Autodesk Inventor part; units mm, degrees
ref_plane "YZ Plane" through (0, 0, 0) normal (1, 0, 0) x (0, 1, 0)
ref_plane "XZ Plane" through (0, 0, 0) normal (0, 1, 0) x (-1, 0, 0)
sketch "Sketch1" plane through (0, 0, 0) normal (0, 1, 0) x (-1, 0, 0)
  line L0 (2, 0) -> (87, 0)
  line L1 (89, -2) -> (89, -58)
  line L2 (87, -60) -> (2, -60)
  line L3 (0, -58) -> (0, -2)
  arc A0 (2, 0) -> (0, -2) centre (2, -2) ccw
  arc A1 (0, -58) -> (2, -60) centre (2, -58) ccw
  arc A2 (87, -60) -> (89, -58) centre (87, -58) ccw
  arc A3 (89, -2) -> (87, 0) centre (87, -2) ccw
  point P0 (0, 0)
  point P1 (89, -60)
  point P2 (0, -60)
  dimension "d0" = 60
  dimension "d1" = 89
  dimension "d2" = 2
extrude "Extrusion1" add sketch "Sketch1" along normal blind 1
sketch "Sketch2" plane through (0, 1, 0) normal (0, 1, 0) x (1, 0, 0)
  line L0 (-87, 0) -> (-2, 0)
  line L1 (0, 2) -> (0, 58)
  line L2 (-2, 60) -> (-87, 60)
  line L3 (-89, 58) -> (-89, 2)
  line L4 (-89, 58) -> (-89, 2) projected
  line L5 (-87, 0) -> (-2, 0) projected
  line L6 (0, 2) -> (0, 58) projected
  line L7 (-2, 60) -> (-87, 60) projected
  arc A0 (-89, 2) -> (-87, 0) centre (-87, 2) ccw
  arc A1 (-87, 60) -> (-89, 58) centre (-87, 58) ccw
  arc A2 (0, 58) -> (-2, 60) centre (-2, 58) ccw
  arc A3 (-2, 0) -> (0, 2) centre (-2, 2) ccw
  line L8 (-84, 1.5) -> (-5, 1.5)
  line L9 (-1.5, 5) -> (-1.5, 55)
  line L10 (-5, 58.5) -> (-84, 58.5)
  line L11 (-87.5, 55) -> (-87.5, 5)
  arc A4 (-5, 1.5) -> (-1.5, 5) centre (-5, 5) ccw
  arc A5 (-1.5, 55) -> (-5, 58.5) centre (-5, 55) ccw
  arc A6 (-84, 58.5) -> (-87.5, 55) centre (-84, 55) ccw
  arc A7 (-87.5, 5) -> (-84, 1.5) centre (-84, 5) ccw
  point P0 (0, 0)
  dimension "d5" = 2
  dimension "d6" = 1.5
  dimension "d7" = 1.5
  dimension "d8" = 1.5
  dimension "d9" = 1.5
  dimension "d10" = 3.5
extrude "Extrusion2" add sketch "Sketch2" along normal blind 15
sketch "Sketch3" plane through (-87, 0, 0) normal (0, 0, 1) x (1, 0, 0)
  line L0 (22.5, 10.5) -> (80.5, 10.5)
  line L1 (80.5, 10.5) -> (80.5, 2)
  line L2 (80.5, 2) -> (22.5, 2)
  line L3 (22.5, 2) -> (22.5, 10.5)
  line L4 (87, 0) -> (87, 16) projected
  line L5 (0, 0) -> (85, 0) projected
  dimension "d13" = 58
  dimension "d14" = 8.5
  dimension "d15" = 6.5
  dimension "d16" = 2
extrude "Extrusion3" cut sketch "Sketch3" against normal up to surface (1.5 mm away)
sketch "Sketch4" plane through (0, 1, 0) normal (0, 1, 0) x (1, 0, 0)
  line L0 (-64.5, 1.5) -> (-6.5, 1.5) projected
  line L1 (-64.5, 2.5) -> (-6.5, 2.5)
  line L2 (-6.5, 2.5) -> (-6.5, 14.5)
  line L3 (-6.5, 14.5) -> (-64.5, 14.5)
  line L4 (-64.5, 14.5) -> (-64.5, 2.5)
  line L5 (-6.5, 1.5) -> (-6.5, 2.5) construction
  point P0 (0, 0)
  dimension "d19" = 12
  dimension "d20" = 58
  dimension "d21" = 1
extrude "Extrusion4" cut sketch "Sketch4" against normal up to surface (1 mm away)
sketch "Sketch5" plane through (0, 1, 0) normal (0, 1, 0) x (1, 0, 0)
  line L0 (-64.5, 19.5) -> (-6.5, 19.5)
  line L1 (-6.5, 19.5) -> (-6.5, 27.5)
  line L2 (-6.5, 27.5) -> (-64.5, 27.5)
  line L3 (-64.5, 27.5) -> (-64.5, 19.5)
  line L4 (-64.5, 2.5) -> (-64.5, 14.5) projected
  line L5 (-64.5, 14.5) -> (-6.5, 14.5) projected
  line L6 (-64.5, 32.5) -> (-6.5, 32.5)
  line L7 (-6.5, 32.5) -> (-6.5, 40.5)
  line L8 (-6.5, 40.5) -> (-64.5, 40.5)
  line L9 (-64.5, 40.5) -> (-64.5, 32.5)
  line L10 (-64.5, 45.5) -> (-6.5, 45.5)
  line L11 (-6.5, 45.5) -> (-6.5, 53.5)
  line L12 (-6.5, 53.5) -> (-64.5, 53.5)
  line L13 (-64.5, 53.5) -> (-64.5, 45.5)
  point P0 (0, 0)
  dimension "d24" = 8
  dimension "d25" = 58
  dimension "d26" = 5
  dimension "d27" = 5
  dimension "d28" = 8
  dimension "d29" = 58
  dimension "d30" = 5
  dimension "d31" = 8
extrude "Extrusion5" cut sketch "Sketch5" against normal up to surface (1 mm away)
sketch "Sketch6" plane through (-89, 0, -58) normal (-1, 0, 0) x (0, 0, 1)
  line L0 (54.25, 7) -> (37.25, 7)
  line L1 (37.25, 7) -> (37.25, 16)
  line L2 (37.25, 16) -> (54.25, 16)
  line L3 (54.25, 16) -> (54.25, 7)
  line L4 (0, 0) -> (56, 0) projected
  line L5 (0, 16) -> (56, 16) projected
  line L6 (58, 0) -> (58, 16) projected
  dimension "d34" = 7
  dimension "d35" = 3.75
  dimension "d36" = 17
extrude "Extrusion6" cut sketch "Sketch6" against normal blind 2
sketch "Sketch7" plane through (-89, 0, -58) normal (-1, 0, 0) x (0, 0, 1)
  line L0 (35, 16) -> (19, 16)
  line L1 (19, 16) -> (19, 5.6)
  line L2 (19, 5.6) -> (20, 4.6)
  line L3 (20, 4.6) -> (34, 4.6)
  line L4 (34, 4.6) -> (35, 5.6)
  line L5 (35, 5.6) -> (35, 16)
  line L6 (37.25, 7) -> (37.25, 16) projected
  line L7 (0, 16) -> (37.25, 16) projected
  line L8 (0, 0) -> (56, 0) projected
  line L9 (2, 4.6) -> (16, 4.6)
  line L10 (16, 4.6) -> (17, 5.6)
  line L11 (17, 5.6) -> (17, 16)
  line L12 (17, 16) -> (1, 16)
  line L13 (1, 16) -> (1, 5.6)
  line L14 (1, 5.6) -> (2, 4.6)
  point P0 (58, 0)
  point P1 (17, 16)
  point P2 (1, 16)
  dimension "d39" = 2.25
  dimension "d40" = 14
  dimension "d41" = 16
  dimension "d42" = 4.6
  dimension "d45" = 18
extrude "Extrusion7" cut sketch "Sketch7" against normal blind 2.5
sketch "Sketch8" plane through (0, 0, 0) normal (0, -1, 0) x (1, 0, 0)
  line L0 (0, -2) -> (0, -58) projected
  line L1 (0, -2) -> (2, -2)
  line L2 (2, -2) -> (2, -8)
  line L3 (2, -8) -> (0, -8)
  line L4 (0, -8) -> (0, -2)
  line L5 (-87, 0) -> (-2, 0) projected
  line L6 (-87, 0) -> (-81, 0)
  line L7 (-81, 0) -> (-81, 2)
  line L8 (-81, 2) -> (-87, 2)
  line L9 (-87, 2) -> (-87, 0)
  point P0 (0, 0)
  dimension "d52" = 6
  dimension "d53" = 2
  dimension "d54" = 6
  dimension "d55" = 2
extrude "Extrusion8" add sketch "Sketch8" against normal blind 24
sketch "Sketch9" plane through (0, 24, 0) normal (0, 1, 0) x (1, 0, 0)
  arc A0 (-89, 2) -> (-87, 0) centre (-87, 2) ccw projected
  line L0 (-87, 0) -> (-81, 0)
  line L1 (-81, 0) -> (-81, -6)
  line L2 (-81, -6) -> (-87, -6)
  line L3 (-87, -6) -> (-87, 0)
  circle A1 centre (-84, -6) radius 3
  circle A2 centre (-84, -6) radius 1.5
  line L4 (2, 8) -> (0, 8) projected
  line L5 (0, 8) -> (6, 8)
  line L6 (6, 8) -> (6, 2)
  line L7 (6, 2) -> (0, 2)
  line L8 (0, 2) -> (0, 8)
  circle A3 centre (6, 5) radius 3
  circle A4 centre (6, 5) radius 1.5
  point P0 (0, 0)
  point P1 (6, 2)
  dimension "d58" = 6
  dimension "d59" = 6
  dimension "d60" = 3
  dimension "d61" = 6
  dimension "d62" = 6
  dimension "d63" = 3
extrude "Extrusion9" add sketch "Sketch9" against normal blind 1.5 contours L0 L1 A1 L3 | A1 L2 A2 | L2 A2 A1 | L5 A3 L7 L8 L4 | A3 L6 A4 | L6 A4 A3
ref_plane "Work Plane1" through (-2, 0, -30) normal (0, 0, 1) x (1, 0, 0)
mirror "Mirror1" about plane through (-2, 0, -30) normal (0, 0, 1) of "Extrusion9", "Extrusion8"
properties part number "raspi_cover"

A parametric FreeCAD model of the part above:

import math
import FreeCAD as App
import Part
import Sketcher

doc = App.newDocument("Part")
params = doc.addObject("Spreadsheet::Sheet", "Params")
for row, (alias, value) in enumerate([
    ("sketch1_radius", "2 mm"),
    ("pad1_length", "1 mm"),
    ("sketch2_radius", "2 mm"),
    ("sketch2_radius2", "3.5 mm"),
    ("sketch2_width", "85 mm"),
    ("sketch2_height", "56 mm"),
    ("pad2_length", "15 mm"),
    ("sketch3_width", "58 mm"),
    ("sketch3_height", "8.5 mm"),
    ("pocket1_length", "1.5 mm"),
    ("sketch4_width", "58 mm"),
    ("sketch4_height", "12 mm"),
    ("pocket2_length", "1 mm"),
    ("sketch5_width", "58 mm"),
    ("sketch5_height", "8 mm"),
    ("pocket3_length", "1 mm"),
    ("sketch6_height", "17 mm"),
    ("sketch6_width", "9 mm"),
    ("pocket4_length", "2 mm"),
    ("sketch7_height", "16 mm"),
    ("sketch7_height2", "14 mm"),
    ("pocket5_length", "2.5 mm"),
    ("sketch8_width", "2 mm"),
    ("sketch8_width2", "6 mm"),
    ("pad3_length", "24 mm"),
    ("sketch9_diameter", "3 mm"),
    ("sketch9_radius", "3 mm"),
    ("pad4_length", "1.5 mm"),
], start=1):
    params.set(f"A{row}", alias)
    params.set(f"B{row}", "=" + value)
    params.setAlias(f"B{row}", alias)

body = doc.addObject("PartDesign::Body", "Body")

# Sketch on XZ plane
sketch1 = doc.addObject("Sketcher::SketchObject", "Sketch")
body.addObject(sketch1)
sketch1.AttachmentSupport = (doc.XZ_Plane, [""])
sketch1.MapMode = "FlatFace"
sketch1.addGeometry([
    Part.LineSegment(App.Vector(-87, 0, 0), App.Vector(-2, 0, 0)),  # 0
    Part.ArcOfCircle(Part.Circle(App.Vector(-2, -2, 0), App.Vector(0, 0, 1), 2), math.radians(0), math.radians(90)),  # 1
    Part.LineSegment(App.Vector(0, -2, 0), App.Vector(0, -58, 0)),  # 2
    Part.ArcOfCircle(Part.Circle(App.Vector(-2, -58, 0), App.Vector(0, 0, 1), 2), math.radians(-90), math.radians(0)),  # 3
    Part.LineSegment(App.Vector(-2, -60, 0), App.Vector(-87, -60, 0)),  # 4
    Part.ArcOfCircle(Part.Circle(App.Vector(-87, -58, 0), App.Vector(0, 0, 1), 2), math.radians(180), math.radians(270)),  # 5
    Part.LineSegment(App.Vector(-89, -58, 0), App.Vector(-89, -2, 0)),  # 6
    Part.ArcOfCircle(Part.Circle(App.Vector(-87, -2, 0), App.Vector(0, 0, 1), 2), math.radians(90), math.radians(180)),  # 7
], False)
sketch1.addConstraint([
    Sketcher.Constraint("Tangent", 0, 2, 1, 2),
    Sketcher.Constraint("Tangent", 1, 1, 2, 1),
    Sketcher.Constraint("Tangent", 2, 2, 3, 2),
    Sketcher.Constraint("Tangent", 3, 1, 4, 1),
    Sketcher.Constraint("Tangent", 4, 2, 5, 2),
    Sketcher.Constraint("Tangent", 5, 1, 6, 1),
    Sketcher.Constraint("Tangent", 6, 2, 7, 2),
    Sketcher.Constraint("Tangent", 7, 1, 0, 1),
    Sketcher.Constraint("Horizontal", 0),
    Sketcher.Constraint("Vertical", 2),
    Sketcher.Constraint("Horizontal", 4),
    Sketcher.Constraint("Vertical", 6),
    Sketcher.Constraint("Equal", 1, 3),
    Sketcher.Constraint("Equal", 3, 5),
    Sketcher.Constraint("Equal", 5, 7),
    Sketcher.Constraint("PointOnObject", 0, 2, -1),
    Sketcher.Constraint("PointOnObject", 1, 1, -2),
    Sketcher.Constraint("Radius", 1, 2.0),
    Sketcher.Constraint("DistanceY", 3, 1, -1, 1, 60.0),
    Sketcher.Constraint("DistanceX", 5, 1, -1, 1, 89.0),
])
sketch1.setExpression("Constraints[17]", "Params.sketch1_radius")
pad1 = doc.addObject("PartDesign::Pad", "Pad")
body.addObject(pad1)
pad1.Profile = sketch1
pad1.setExpression("Length", "Params.pad1_length")
pad1.Reversed = True

# Sketch on XZ plane
sketch2 = doc.addObject("Sketcher::SketchObject", "Sketch001")
body.addObject(sketch2)
sketch2.AttachmentSupport = (doc.XZ_Plane, [""])
sketch2.MapMode = "FlatFace"
sketch2.AttachmentOffset = App.Placement(App.Vector(0, 0, -1), App.Rotation())
sketch2.addGeometry([
    Part.ArcOfCircle(Part.Circle(App.Vector(-87, -2, 0), App.Vector(0, 0, 1), 2), math.radians(90), math.radians(180)),  # 0
    Part.LineSegment(App.Vector(-87, 0, 0), App.Vector(-2, 0, 0)),  # 1
    Part.ArcOfCircle(Part.Circle(App.Vector(-2, -2, 0), App.Vector(0, 0, 1), 2), math.radians(0), math.radians(90)),  # 2
    Part.LineSegment(App.Vector(0, -2, 0), App.Vector(0, -58, 0)),  # 3
    Part.ArcOfCircle(Part.Circle(App.Vector(-2, -58, 0), App.Vector(0, 0, 1), 2), math.radians(-90), math.radians(0)),  # 4
    Part.LineSegment(App.Vector(-2, -60, 0), App.Vector(-87, -60, 0)),  # 5
    Part.ArcOfCircle(Part.Circle(App.Vector(-87, -58, 0), App.Vector(0, 0, 1), 2), math.radians(180), math.radians(270)),  # 6
    Part.LineSegment(App.Vector(-89, -58, 0), App.Vector(-89, -2, 0)),  # 7
    Part.LineSegment(App.Vector(-5, -1.5, 0), App.Vector(-84, -1.5, 0)),  # 8
    Part.ArcOfCircle(Part.Circle(App.Vector(-84, -5, 0), App.Vector(0, 0, 1), 3.5), math.radians(90), math.radians(180)),  # 9
    Part.LineSegment(App.Vector(-87.5, -5, 0), App.Vector(-87.5, -55, 0)),  # 10
    Part.ArcOfCircle(Part.Circle(App.Vector(-84, -55, 0), App.Vector(0, 0, 1), 3.5), math.radians(180), math.radians(270)),  # 11
    Part.LineSegment(App.Vector(-84, -58.5, 0), App.Vector(-5, -58.5, 0)),  # 12
    Part.ArcOfCircle(Part.Circle(App.Vector(-5, -55, 0), App.Vector(0, 0, 1), 3.5), math.radians(-90), math.radians(0)),  # 13
    Part.LineSegment(App.Vector(-1.5, -55, 0), App.Vector(-1.5, -5, 0)),  # 14
    Part.ArcOfCircle(Part.Circle(App.Vector(-5, -5, 0), App.Vector(0, 0, 1), 3.5), math.radians(0), math.radians(90)),  # 15
], False)
sketch2.addConstraint([
    Sketcher.Constraint("Tangent", 0, 1, 1, 1),
    Sketcher.Constraint("Tangent", 1, 2, 2, 2),
    Sketcher.Constraint("Tangent", 2, 1, 3, 1),
    Sketcher.Constraint("Tangent", 3, 2, 4, 2),
    Sketcher.Constraint("Tangent", 4, 1, 5, 1),
    Sketcher.Constraint("Tangent", 5, 2, 6, 2),
    Sketcher.Constraint("Tangent", 6, 1, 7, 1),
    Sketcher.Constraint("Tangent", 7, 2, 0, 2),
    Sketcher.Constraint("Tangent", 8, 2, 9, 1),
    Sketcher.Constraint("Tangent", 9, 2, 10, 1),
    Sketcher.Constraint("Tangent", 10, 2, 11, 1),
    Sketcher.Constraint("Tangent", 11, 2, 12, 1),
    Sketcher.Constraint("Tangent", 12, 2, 13, 1),
    Sketcher.Constraint("Tangent", 13, 2, 14, 1),
    Sketcher.Constraint("Tangent", 14, 2, 15, 1),
    Sketcher.Constraint("Tangent", 15, 2, 8, 1),
    Sketcher.Constraint("Horizontal", 1),
    Sketcher.Constraint("Vertical", 3),
    Sketcher.Constraint("Horizontal", 5),
    Sketcher.Constraint("Vertical", 7),
    Sketcher.Constraint("Horizontal", 8),
    Sketcher.Constraint("Vertical", 10),
    Sketcher.Constraint("Horizontal", 12),
    Sketcher.Constraint("Vertical", 14),
    Sketcher.Constraint("Equal", 0, 2),
    Sketcher.Constraint("Equal", 2, 4),
    Sketcher.Constraint("Equal", 4, 6),
    Sketcher.Constraint("Equal", 9, 11),
    Sketcher.Constraint("Equal", 11, 13),
    Sketcher.Constraint("Equal", 13, 15),
    Sketcher.Constraint("PointOnObject", 0, 1, -1),
    Sketcher.Constraint("PointOnObject", 2, 1, -2),
    Sketcher.Constraint("Radius", 0, 2.0),
    Sketcher.Constraint("Radius", 9, 3.5),
    Sketcher.Constraint("DistanceY", 8, 2, -1, 1, 1.5),
    Sketcher.Constraint("DistanceX", 13, 2, -1, 1, 1.5),
    Sketcher.Constraint("DistanceX", 7, 2, 9, 2, 1.5),
    Sketcher.Constraint("DistanceY", 5, 2, 11, 2, 1.5),
    Sketcher.Constraint("DistanceX", 1, 1, 1, 2, 85.0),
    Sketcher.Constraint("DistanceY", 3, 2, 3, 1, 56.0),
])
sketch2.setExpression("Constraints[32]", "Params.sketch2_radius")
sketch2.setExpression("Constraints[33]", "Params.sketch2_radius2")
sketch2.setExpression("Constraints[38]", "Params.sketch2_width")
sketch2.setExpression("Constraints[39]", "Params.sketch2_height")
pad2 = doc.addObject("PartDesign::Pad", "Pad001")
body.addObject(pad2)
pad2.Profile = sketch2
pad2.setExpression("Length", "Params.pad2_length")
pad2.Reversed = True

# Sketch on XY plane
sketch3 = doc.addObject("Sketcher::SketchObject", "Sketch002")
body.addObject(sketch3)
sketch3.AttachmentSupport = (doc.XY_Plane, [""])
sketch3.MapMode = "FlatFace"
sketch3.addGeometry([
    Part.LineSegment(App.Vector(-6.5, 10.5, 0), App.Vector(-64.5, 10.5, 0)),
    Part.LineSegment(App.Vector(-64.5, 10.5, 0), App.Vector(-64.5, 2, 0)),
    Part.LineSegment(App.Vector(-64.5, 2, 0), App.Vector(-6.5, 2, 0)),
    Part.LineSegment(App.Vector(-6.5, 2, 0), App.Vector(-6.5, 10.5, 0)),
], False)
sketch3.addConstraint([
    Sketcher.Constraint("Coincident", 0, 2, 1, 1),
    Sketcher.Constraint("Coincident", 1, 2, 2, 1),
    Sketcher.Constraint("Coincident", 2, 2, 3, 1),
    Sketcher.Constraint("Coincident", 3, 2, 0, 1),
    Sketcher.Constraint("Horizontal", 0),
    Sketcher.Constraint("Vertical", 1),
    Sketcher.Constraint("Horizontal", 2),
    Sketcher.Constraint("Vertical", 3),
    Sketcher.Constraint("DistanceX", 0, 2, 0, 1, 58.0),
    Sketcher.Constraint("DistanceY", 1, 2, 1, 1, 8.5),
    Sketcher.Constraint("DistanceY", -1, 1, 1, 2, 2.0),
    Sketcher.Constraint("DistanceX", 2, 2, -1, 1, 6.5),
])
sketch3.setExpression("Constraints[8]", "Params.sketch3_width")
sketch3.setExpression("Constraints[9]", "Params.sketch3_height")
pocket1 = doc.addObject("PartDesign::Pocket", "Pocket")
body.addObject(pocket1)
pocket1.Profile = sketch3
pocket1.setExpression("Length", "Params.pocket1_length")

# Sketch on XZ plane
sketch4 = doc.addObject("Sketcher::SketchObject", "Sketch003")
body.addObject(sketch4)
sketch4.AttachmentSupport = (doc.XZ_Plane, [""])
sketch4.MapMode = "FlatFace"
sketch4.AttachmentOffset = App.Placement(App.Vector(0, 0, -1), App.Rotation())
sketch4.addGeometry([
    Part.LineSegment(App.Vector(-64.5, -14.5, 0), App.Vector(-64.5, -2.5, 0)),
    Part.LineSegment(App.Vector(-64.5, -2.5, 0), App.Vector(-6.5, -2.5, 0)),
    Part.LineSegment(App.Vector(-6.5, -2.5, 0), App.Vector(-6.5, -14.5, 0)),
    Part.LineSegment(App.Vector(-6.5, -14.5, 0), App.Vector(-64.5, -14.5, 0)),
], False)
sketch4.addConstraint([
    Sketcher.Constraint("Coincident", 0, 2, 1, 1),
    Sketcher.Constraint("Coincident", 1, 2, 2, 1),
    Sketcher.Constraint("Coincident", 2, 2, 3, 1),
    Sketcher.Constraint("Coincident", 3, 2, 0, 1),
    Sketcher.Constraint("Vertical", 0),
    Sketcher.Constraint("Horizontal", 1),
    Sketcher.Constraint("Vertical", 2),
    Sketcher.Constraint("Horizontal", 3),
    Sketcher.Constraint("DistanceX", 1, 1, 1, 2, 58.0),
    Sketcher.Constraint("DistanceY", 0, 1, 0, 2, 12.0),
    Sketcher.Constraint("DistanceX", 0, 2, -1, 1, 64.5),
    Sketcher.Constraint("DistanceY", 0, 2, -1, 1, 2.5),
])
sketch4.setExpression("Constraints[8]", "Params.sketch4_width")
sketch4.setExpression("Constraints[9]", "Params.sketch4_height")
pocket2 = doc.addObject("PartDesign::Pocket", "Pocket001")
body.addObject(pocket2)
pocket2.Profile = sketch4
pocket2.setExpression("Length", "Params.pocket2_length")
pocket2.Reversed = True

# Sketch on XZ plane
sketch5 = doc.addObject("Sketcher::SketchObject", "Sketch004")
body.addObject(sketch5)
sketch5.AttachmentSupport = (doc.XZ_Plane, [""])
sketch5.MapMode = "FlatFace"
sketch5.AttachmentOffset = App.Placement(App.Vector(0, 0, -1), App.Rotation())
sketch5.addGeometry([
    Part.LineSegment(App.Vector(-64.5, -27.5, 0), App.Vector(-64.5, -19.5, 0)),  # 0
    Part.LineSegment(App.Vector(-64.5, -19.5, 0), App.Vector(-6.5, -19.5, 0)),  # 1
    Part.LineSegment(App.Vector(-6.5, -19.5, 0), App.Vector(-6.5, -27.5, 0)),  # 2
    Part.LineSegment(App.Vector(-6.5, -27.5, 0), App.Vector(-64.5, -27.5, 0)),  # 3
    Part.LineSegment(App.Vector(-64.5, -40.5, 0), App.Vector(-64.5, -32.5, 0)),  # 4
    Part.LineSegment(App.Vector(-64.5, -32.5, 0), App.Vector(-6.5, -32.5, 0)),  # 5
    Part.LineSegment(App.Vector(-6.5, -32.5, 0), App.Vector(-6.5, -40.5, 0)),  # 6
    Part.LineSegment(App.Vector(-6.5, -40.5, 0), App.Vector(-64.5, -40.5, 0)),  # 7
    Part.LineSegment(App.Vector(-64.5, -53.5, 0), App.Vector(-64.5, -45.5, 0)),  # 8
    Part.LineSegment(App.Vector(-64.5, -45.5, 0), App.Vector(-6.5, -45.5, 0)),  # 9
    Part.LineSegment(App.Vector(-6.5, -45.5, 0), App.Vector(-6.5, -53.5, 0)),  # 10
    Part.LineSegment(App.Vector(-6.5, -53.5, 0), App.Vector(-64.5, -53.5, 0)),  # 11
], False)
sketch5.addConstraint([
    Sketcher.Constraint("Coincident", 0, 2, 1, 1),
    Sketcher.Constraint("Coincident", 1, 2, 2, 1),
    Sketcher.Constraint("Coincident", 2, 2, 3, 1),
    Sketcher.Constraint("Coincident", 3, 2, 0, 1),
    Sketcher.Constraint("Coincident", 4, 2, 5, 1),
    Sketcher.Constraint("Coincident", 5, 2, 6, 1),
    Sketcher.Constraint("Coincident", 6, 2, 7, 1),
    Sketcher.Constraint("Coincident", 7, 2, 4, 1),
    Sketcher.Constraint("Coincident", 8, 2, 9, 1),
    Sketcher.Constraint("Coincident", 9, 2, 10, 1),
    Sketcher.Constraint("Coincident", 10, 2, 11, 1),
    Sketcher.Constraint("Coincident", 11, 2, 8, 1),
    Sketcher.Constraint("Vertical", 0),
    Sketcher.Constraint("Horizontal", 1),
    Sketcher.Constraint("Vertical", 2),
    Sketcher.Constraint("Horizontal", 3),
    Sketcher.Constraint("Vertical", 4),
    Sketcher.Constraint("Horizontal", 5),
    Sketcher.Constraint("Vertical", 6),
    Sketcher.Constraint("Horizontal", 7),
    Sketcher.Constraint("Vertical", 8),
    Sketcher.Constraint("Horizontal", 9),
    Sketcher.Constraint("Vertical", 10),
    Sketcher.Constraint("Horizontal", 11),
    Sketcher.Constraint("Vertical", 3, 2, 4, 2),
    Sketcher.Constraint("Vertical", 2, 2, 5, 2),
    Sketcher.Constraint("Vertical", 7, 2, 8, 2),
    Sketcher.Constraint("Vertical", 6, 2, 9, 2),
    Sketcher.Constraint("Equal", 2, 4),
    Sketcher.Constraint("Equal", 6, 8),
    Sketcher.Constraint("DistanceX", 1, 1, 1, 2, 58.0),
    Sketcher.Constraint("DistanceY", 0, 1, 0, 2, 8.0),
    Sketcher.Constraint("DistanceY", 4, 2, 3, 2, 5.0),
    Sketcher.Constraint("DistanceY", 8, 2, 7, 2, 5.0),
    Sketcher.Constraint("DistanceX", 0, 2, -1, 1, 64.5),
    Sketcher.Constraint("DistanceY", 0, 2, -1, 1, 19.5),
])
sketch5.setExpression("Constraints[30]", "Params.sketch5_width")
sketch5.setExpression("Constraints[31]", "Params.sketch5_height")
pocket3 = doc.addObject("PartDesign::Pocket", "Pocket002")
body.addObject(pocket3)
pocket3.Profile = sketch5
pocket3.setExpression("Length", "Params.pocket3_length")
pocket3.Reversed = True

# Sketch on YZ plane
sketch6 = doc.addObject("Sketcher::SketchObject", "Sketch005")
body.addObject(sketch6)
sketch6.AttachmentSupport = (doc.YZ_Plane, [""])
sketch6.MapMode = "FlatFace"
sketch6.AttachmentOffset = App.Placement(App.Vector(0, 0, -89), App.Rotation())
sketch6.addGeometry([
    Part.LineSegment(App.Vector(7, -20.75, 0), App.Vector(7, -3.75, 0)),
    Part.LineSegment(App.Vector(7, -3.75, 0), App.Vector(16, -3.75, 0)),
    Part.LineSegment(App.Vector(16, -3.75, 0), App.Vector(16, -20.75, 0)),
    Part.LineSegment(App.Vector(16, -20.75, 0), App.Vector(7, -20.75, 0)),
], False)
sketch6.addConstraint([
    Sketcher.Constraint("Coincident", 0, 2, 1, 1),
    Sketcher.Constraint("Coincident", 1, 2, 2, 1),
    Sketcher.Constraint("Coincident", 2, 2, 3, 1),
    Sketcher.Constraint("Coincident", 3, 2, 0, 1),
    Sketcher.Constraint("Vertical", 0),
    Sketcher.Constraint("Horizontal", 1),
    Sketcher.Constraint("Vertical", 2),
    Sketcher.Constraint("Horizontal", 3),
    Sketcher.Constraint("DistanceY", 0, 1, 0, 2, 17.0),
    Sketcher.Constraint("DistanceX", -1, 1, 0, 2, 7.0),
    Sketcher.Constraint("DistanceX", 1, 1, 1, 2, 9.0),
    Sketcher.Constraint("DistanceY", 0, 2, -1, 1, 3.75),
])
sketch6.setExpression("Constraints[8]", "Params.sketch6_height")
sketch6.setExpression("Constraints[10]", "Params.sketch6_width")
pocket4 = doc.addObject("PartDesign::Pocket", "Pocket003")
body.addObject(pocket4)
pocket4.Profile = sketch6
pocket4.setExpression("Length", "Params.pocket4_length")
pocket4.Reversed = True

# Sketch on YZ plane
sketch7 = doc.addObject("Sketcher::SketchObject", "Sketch006")
body.addObject(sketch7)
sketch7.AttachmentSupport = (doc.YZ_Plane, [""])
sketch7.MapMode = "FlatFace"
sketch7.AttachmentOffset = App.Placement(App.Vector(0, 0, -89), App.Rotation())
sketch7.addGeometry([
    Part.LineSegment(App.Vector(5.6, -23, 0), App.Vector(16, -23, 0)),  # 0
    Part.LineSegment(App.Vector(16, -23, 0), App.Vector(16, -39, 0)),  # 1
    Part.LineSegment(App.Vector(16, -39, 0), App.Vector(5.6, -39, 0)),  # 2
    Part.LineSegment(App.Vector(5.6, -39, 0), App.Vector(4.6, -38, 0)),  # 3
    Part.LineSegment(App.Vector(4.6, -38, 0), App.Vector(4.6, -24, 0)),  # 4
    Part.LineSegment(App.Vector(4.6, -24, 0), App.Vector(5.6, -23, 0)),  # 5
    Part.LineSegment(App.Vector(5.6, -41, 0), App.Vector(16, -41, 0)),  # 6
    Part.LineSegment(App.Vector(16, -41, 0), App.Vector(16, -57, 0)),  # 7
    Part.LineSegment(App.Vector(16, -57, 0), App.Vector(5.6, -57, 0)),  # 8
    Part.LineSegment(App.Vector(5.6, -57, 0), App.Vector(4.6, -56, 0)),  # 9
    Part.LineSegment(App.Vector(4.6, -56, 0), App.Vector(4.6, -42, 0)),  # 10
    Part.LineSegment(App.Vector(4.6, -42, 0), App.Vector(5.6, -41, 0)),  # 11
], False)
sketch7.addConstraint([
    Sketcher.Constraint("Coincident", 0, 2, 1, 1),
    Sketcher.Constraint("Coincident", 1, 2, 2, 1),
    Sketcher.Constraint("Coincident", 2, 2, 3, 1),
    Sketcher.Constraint("Coincident", 3, 2, 4, 1),
    Sketcher.Constraint("Coincident", 4, 2, 5, 1),
    Sketcher.Constraint("Coincident", 5, 2, 0, 1),
    Sketcher.Constraint("Coincident", 6, 2, 7, 1),
    Sketcher.Constraint("Coincident", 7, 2, 8, 1),
    Sketcher.Constraint("Coincident", 8, 2, 9, 1),
    Sketcher.Constraint("Coincident", 9, 2, 10, 1),
    Sketcher.Constraint("Coincident", 10, 2, 11, 1),
    Sketcher.Constraint("Coincident", 11, 2, 6, 1),
    Sketcher.Constraint("Horizontal", 0),
    Sketcher.Constraint("Vertical", 1),
    Sketcher.Constraint("Horizontal", 2),
    Sketcher.Constraint("Vertical", 4),
    Sketcher.Constraint("Horizontal", 6),
    Sketcher.Constraint("Vertical", 7),
    Sketcher.Constraint("Horizontal", 8),
    Sketcher.Constraint("Vertical", 10),
    Sketcher.Constraint("Perpendicular", 3, 5),
    Sketcher.Constraint("Perpendicular", 5, 9),
    Sketcher.Constraint("Perpendicular", 9, 11),
    Sketcher.Constraint("Vertical", 2, 2, 5, 2),
    Sketcher.Constraint("Vertical", 1, 2, 6, 2),
    Sketcher.Constraint("Vertical", 5, 2, 8, 2),
    Sketcher.Constraint("Vertical", 4, 2, 9, 2),
    Sketcher.Constraint("Vertical", 8, 2, 11, 2),
    Sketcher.Constraint("Equal", 1, 7),
    Sketcher.Constraint("Equal", 3, 5),
    Sketcher.Constraint("DistanceY", 1, 2, 1, 1, 16.0),
    Sketcher.Constraint("DistanceY", 4, 1, 4, 2, 14.0),
    Sketcher.Constraint("DistanceX", -1, 1, 0, 2, 16.0),
    Sketcher.Constraint("DistanceY", 6, 2, 0, 2, 18.0),
    Sketcher.Constraint("DistanceX", -1, 1, 3, 2, 4.6),
    Sketcher.Constraint("DistanceY", 0, 2, -1, 1, 23.0),
])
sketch7.setExpression("Constraints[30]", "Params.sketch7_height")
sketch7.setExpression("Constraints[31]", "Params.sketch7_height2")
pocket5 = doc.addObject("PartDesign::Pocket", "Pocket004")
body.addObject(pocket5)
pocket5.Profile = sketch7
pocket5.setExpression("Length", "Params.pocket5_length")
pocket5.Reversed = True

# Sketch on XZ plane
sketch8 = doc.addObject("Sketcher::SketchObject", "Sketch007")
body.addObject(sketch8)
sketch8.AttachmentSupport = (doc.XZ_Plane, [""])
sketch8.MapMode = "FlatFace"
sketch8.addGeometry([
    Part.LineSegment(App.Vector(2, -2, 0), App.Vector(0, -2, 0)),  # 0
    Part.LineSegment(App.Vector(0, -2, 0), App.Vector(0, -8, 0)),  # 1
    Part.LineSegment(App.Vector(0, -8, 0), App.Vector(2, -8, 0)),  # 2
    Part.LineSegment(App.Vector(2, -8, 0), App.Vector(2, -2, 0)),  # 3
    Part.LineSegment(App.Vector(-87, 2, 0), App.Vector(-87, 0, 0)),  # 4
    Part.LineSegment(App.Vector(-87, 0, 0), App.Vector(-81, 0, 0)),  # 5
    Part.LineSegment(App.Vector(-81, 0, 0), App.Vector(-81, 2, 0)),  # 6
    Part.LineSegment(App.Vector(-81, 2, 0), App.Vector(-87, 2, 0)),  # 7
], False)
sketch8.addConstraint([
    Sketcher.Constraint("Coincident", 0, 2, 1, 1),
    Sketcher.Constraint("Coincident", 1, 2, 2, 1),
    Sketcher.Constraint("Coincident", 2, 2, 3, 1),
    Sketcher.Constraint("Coincident", 3, 2, 0, 1),
    Sketcher.Constraint("Coincident", 4, 2, 5, 1),
    Sketcher.Constraint("Coincident", 5, 2, 6, 1),
    Sketcher.Constraint("Coincident", 6, 2, 7, 1),
    Sketcher.Constraint("Coincident", 7, 2, 4, 1),
    Sketcher.Constraint("Horizontal", 0),
    Sketcher.Constraint("Vertical", 1),
    Sketcher.Constraint("Horizontal", 2),
    Sketcher.Constraint("Vertical", 3),
    Sketcher.Constraint("Vertical", 4),
    Sketcher.Constraint("Horizontal", 5),
    Sketcher.Constraint("Vertical", 6),
    Sketcher.Constraint("Horizontal", 7),
    Sketcher.Constraint("PointOnObject", 0, 2, -2),
    Sketcher.Constraint("PointOnObject", 4, 2, -1),
    Sketcher.Constraint("Equal", 7, 1),
    Sketcher.Constraint("Equal", 2, 4),
    Sketcher.Constraint("DistanceX", 0, 2, 0, 1, 2.0),
    Sketcher.Constraint("DistanceX", 5, 1, 5, 2, 6.0),
    Sketcher.Constraint("DistanceY", 0, 2, -1, 1, 2.0),
    Sketcher.Constraint("DistanceX", 4, 2, -1, 1, 87.0),
])
sketch8.setExpression("Constraints[20]", "Params.sketch8_width")
sketch8.setExpression("Constraints[21]", "Params.sketch8_width2")
pad3 = doc.addObject("PartDesign::Pad", "Pad002")
body.addObject(pad3)
pad3.Profile = sketch8
pad3.setExpression("Length", "Params.pad3_length")
pad3.Reversed = True

# Sketch on XZ plane
sketch9 = doc.addObject("Sketcher::SketchObject", "Sketch008")
body.addObject(sketch9)
sketch9.AttachmentSupport = (doc.XZ_Plane, [""])
sketch9.MapMode = "FlatFace"
sketch9.AttachmentOffset = App.Placement(App.Vector(0, 0, -24), App.Rotation())
sketch9.addGeometry([
    Part.LineSegment(App.Vector(-81, 0, 0), App.Vector(-87, 0, 0)),  # 0
    Part.LineSegment(App.Vector(-87, 0, 0), App.Vector(-87, 6, 0)),  # 1
    Part.ArcOfCircle(Part.Circle(App.Vector(-84, 6, 0), App.Vector(0, 0, 1), 3), math.radians(0), math.radians(180)),  # 2
    Part.LineSegment(App.Vector(-81, 6, 0), App.Vector(-81, 0, 0)),  # 3
    Part.Circle(App.Vector(-84, 6, 0), App.Vector(0, 0, 1), 1.5),  # 4
    Part.LineSegment(App.Vector(6, -8, 0), App.Vector(0, -8, 0)),  # 5
    Part.LineSegment(App.Vector(0, -8, 0), App.Vector(0, -2, 0)),  # 6
    Part.LineSegment(App.Vector(0, -2, 0), App.Vector(6, -2, 0)),  # 7
    Part.ArcOfCircle(Part.Circle(App.Vector(6, -5, 0), App.Vector(0, 0, 1), 3), math.radians(-90), math.radians(90)),  # 8
    Part.Circle(App.Vector(6, -5, 0), App.Vector(0, 0, 1), 1.5),  # 9
], False)
sketch9.addConstraint([
    Sketcher.Constraint("Coincident", 0, 2, 1, 1),
    Sketcher.Constraint("Tangent", 1, 2, 2, 2),
    Sketcher.Constraint("Tangent", 2, 1, 3, 1),
    Sketcher.Constraint("Coincident", 3, 2, 0, 1),
    Sketcher.Constraint("Coincident", 5, 2, 6, 1),
    Sketcher.Constraint("Coincident", 6, 2, 7, 1),
    Sketcher.Constraint("Tangent", 7, 2, 8, 2),
    Sketcher.Constraint("Tangent", 8, 1, 5, 1),
    Sketcher.Constraint("Horizontal", 0),
    Sketcher.Constraint("Vertical", 1),
    Sketcher.Constraint("Vertical", 3),
    Sketcher.Constraint("Horizontal", 5),
    Sketcher.Constraint("Vertical", 6),
    Sketcher.Constraint("Horizontal", 7),
    Sketcher.Constraint("Coincident", 4, 3, 2, 3),
    Sketcher.Constraint("Coincident", 9, 3, 8, 3),
    Sketcher.Constraint("Equal", 2, 8),
    Sketcher.Constraint("Equal", 4, 9),
    Sketcher.Constraint("PointOnObject", 0, 2, -1),
    Sketcher.Constraint("PointOnObject", 5, 2, -2),
    Sketcher.Constraint("Equal", 0, 5),
    Sketcher.Constraint("Equal", 7, 1),
    Sketcher.Constraint("Diameter", 4, 3.0),
    Sketcher.Constraint("Radius", 2, 3.0),
    Sketcher.Constraint("DistanceX", 2, 3, -1, 1, 84.0),
    Sketcher.Constraint("DistanceY", 8, 3, -1, 1, 5.0),
])
sketch9.setExpression("Constraints[22]", "Params.sketch9_diameter")
sketch9.setExpression("Constraints[23]", "Params.sketch9_radius")
pad4 = doc.addObject("PartDesign::Pad", "Pad003")
body.addObject(pad4)
pad4.Profile = sketch9
pad4.setExpression("Length", "Params.pad4_length")
doc.recompute()

datumplane = doc.addObject("PartDesign::Plane", "DatumPlane")
body.addObject(datumplane)
datumplane.AttachmentSupport = (doc.XY_Plane, [""])
datumplane.MapMode = "FlatFace"
datumplane.AttachmentOffset = App.Placement(App.Vector(0, 0, -30), App.Rotation())
mirrored = doc.addObject("PartDesign::Mirrored", "Mirrored")
body.addObject(mirrored)
mirrored.Originals = [pad4, pad3]
mirrored.MirrorPlane = (datumplane, [""])
body.Tip = mirrored

doc.recompute()
